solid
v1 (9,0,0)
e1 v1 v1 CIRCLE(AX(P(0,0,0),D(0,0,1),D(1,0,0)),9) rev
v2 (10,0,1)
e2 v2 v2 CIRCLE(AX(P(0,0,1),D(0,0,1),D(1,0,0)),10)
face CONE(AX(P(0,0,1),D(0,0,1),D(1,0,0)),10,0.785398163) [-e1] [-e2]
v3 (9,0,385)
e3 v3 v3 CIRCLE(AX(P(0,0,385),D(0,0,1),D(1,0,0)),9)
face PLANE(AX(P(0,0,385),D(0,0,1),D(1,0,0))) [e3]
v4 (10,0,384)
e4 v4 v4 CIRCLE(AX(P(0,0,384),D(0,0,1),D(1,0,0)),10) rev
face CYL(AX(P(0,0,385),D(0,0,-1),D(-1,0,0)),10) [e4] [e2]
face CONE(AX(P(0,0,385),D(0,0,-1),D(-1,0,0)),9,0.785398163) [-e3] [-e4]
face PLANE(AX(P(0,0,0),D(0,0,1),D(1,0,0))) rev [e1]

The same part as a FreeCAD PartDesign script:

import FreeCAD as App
import Part
import Sketcher
Q = App.Units.Quantity


def edges_at(feature, points):
    """Names of the edges that pass closest to the given points."""
    edges = feature.Shape.Edges
    near = lambda p: min(range(len(edges)), key=lambda i: edges[i].distToShape(Part.Vertex(*p))[0])
    return sorted({f"Edge{near(p) + 1}" for p in points})

doc = App.newDocument("Part")
body = doc.addObject("PartDesign::Body", "Body")

# Sketch on XY plane
sketch1 = body.newObject("Sketcher::SketchObject", "Sketch")
sketch1.AttachmentSupport = (doc.getObject("XY_Plane"), [""])
sketch1.MapMode = "FlatFace"
sketch1.addGeometry(Part.Circle(App.Vector(0, 0, 0), App.Vector(0, 0, 1), 10), False)
sketch1.addConstraint([
    Sketcher.Constraint("Coincident", 0, 3, -1, 1),
    Sketcher.Constraint("Diameter", 0, Q("20 mm")),
])
pad1 = body.newObject("PartDesign::Pad", "Pad")
pad1.Profile = sketch1
pad1.Length = 385
doc.recompute()

chamfer = body.newObject("PartDesign::Chamfer", "Chamfer")
chamfer.Base = (pad1, edges_at(pad1, [(-10, 0, 0), (-10, 0, 385)]))
chamfer.Size = 1

doc.recompute()
